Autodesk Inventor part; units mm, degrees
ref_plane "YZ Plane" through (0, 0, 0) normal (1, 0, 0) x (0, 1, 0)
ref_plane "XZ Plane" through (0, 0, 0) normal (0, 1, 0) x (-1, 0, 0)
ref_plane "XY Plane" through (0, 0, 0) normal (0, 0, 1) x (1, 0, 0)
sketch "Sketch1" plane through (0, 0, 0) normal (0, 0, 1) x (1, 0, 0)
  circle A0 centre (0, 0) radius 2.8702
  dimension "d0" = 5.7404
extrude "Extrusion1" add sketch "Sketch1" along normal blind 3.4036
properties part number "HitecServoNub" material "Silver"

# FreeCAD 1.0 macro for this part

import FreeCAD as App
import Part
import Sketcher

V = App.Vector
Q = App.Units.Quantity

doc = App.newDocument("Part")
body = doc.addObject("PartDesign::Body", "Body")

# Sketch on XY plane
sketch1 = body.newObject("Sketcher::SketchObject", "Sketch")
sketch1.AttachmentSupport = (doc.getObject("XY_Plane"), [""])
sketch1.MapMode = "FlatFace"
sketch1.addGeometry(Part.Circle(V(0, 0, 0), V(0, 0, 1), 2.8702), False)
sketch1.addConstraint(Sketcher.Constraint("Coincident", 0, 3, -1, 1))
sketch1.addConstraint(Sketcher.Constraint("Diameter", 0, Q("0.226 in")))
pad1 = body.newObject("PartDesign::Pad", "Pad")
pad1.Profile = sketch1
pad1.Length = Q("0.134 in")

doc.recompute()
